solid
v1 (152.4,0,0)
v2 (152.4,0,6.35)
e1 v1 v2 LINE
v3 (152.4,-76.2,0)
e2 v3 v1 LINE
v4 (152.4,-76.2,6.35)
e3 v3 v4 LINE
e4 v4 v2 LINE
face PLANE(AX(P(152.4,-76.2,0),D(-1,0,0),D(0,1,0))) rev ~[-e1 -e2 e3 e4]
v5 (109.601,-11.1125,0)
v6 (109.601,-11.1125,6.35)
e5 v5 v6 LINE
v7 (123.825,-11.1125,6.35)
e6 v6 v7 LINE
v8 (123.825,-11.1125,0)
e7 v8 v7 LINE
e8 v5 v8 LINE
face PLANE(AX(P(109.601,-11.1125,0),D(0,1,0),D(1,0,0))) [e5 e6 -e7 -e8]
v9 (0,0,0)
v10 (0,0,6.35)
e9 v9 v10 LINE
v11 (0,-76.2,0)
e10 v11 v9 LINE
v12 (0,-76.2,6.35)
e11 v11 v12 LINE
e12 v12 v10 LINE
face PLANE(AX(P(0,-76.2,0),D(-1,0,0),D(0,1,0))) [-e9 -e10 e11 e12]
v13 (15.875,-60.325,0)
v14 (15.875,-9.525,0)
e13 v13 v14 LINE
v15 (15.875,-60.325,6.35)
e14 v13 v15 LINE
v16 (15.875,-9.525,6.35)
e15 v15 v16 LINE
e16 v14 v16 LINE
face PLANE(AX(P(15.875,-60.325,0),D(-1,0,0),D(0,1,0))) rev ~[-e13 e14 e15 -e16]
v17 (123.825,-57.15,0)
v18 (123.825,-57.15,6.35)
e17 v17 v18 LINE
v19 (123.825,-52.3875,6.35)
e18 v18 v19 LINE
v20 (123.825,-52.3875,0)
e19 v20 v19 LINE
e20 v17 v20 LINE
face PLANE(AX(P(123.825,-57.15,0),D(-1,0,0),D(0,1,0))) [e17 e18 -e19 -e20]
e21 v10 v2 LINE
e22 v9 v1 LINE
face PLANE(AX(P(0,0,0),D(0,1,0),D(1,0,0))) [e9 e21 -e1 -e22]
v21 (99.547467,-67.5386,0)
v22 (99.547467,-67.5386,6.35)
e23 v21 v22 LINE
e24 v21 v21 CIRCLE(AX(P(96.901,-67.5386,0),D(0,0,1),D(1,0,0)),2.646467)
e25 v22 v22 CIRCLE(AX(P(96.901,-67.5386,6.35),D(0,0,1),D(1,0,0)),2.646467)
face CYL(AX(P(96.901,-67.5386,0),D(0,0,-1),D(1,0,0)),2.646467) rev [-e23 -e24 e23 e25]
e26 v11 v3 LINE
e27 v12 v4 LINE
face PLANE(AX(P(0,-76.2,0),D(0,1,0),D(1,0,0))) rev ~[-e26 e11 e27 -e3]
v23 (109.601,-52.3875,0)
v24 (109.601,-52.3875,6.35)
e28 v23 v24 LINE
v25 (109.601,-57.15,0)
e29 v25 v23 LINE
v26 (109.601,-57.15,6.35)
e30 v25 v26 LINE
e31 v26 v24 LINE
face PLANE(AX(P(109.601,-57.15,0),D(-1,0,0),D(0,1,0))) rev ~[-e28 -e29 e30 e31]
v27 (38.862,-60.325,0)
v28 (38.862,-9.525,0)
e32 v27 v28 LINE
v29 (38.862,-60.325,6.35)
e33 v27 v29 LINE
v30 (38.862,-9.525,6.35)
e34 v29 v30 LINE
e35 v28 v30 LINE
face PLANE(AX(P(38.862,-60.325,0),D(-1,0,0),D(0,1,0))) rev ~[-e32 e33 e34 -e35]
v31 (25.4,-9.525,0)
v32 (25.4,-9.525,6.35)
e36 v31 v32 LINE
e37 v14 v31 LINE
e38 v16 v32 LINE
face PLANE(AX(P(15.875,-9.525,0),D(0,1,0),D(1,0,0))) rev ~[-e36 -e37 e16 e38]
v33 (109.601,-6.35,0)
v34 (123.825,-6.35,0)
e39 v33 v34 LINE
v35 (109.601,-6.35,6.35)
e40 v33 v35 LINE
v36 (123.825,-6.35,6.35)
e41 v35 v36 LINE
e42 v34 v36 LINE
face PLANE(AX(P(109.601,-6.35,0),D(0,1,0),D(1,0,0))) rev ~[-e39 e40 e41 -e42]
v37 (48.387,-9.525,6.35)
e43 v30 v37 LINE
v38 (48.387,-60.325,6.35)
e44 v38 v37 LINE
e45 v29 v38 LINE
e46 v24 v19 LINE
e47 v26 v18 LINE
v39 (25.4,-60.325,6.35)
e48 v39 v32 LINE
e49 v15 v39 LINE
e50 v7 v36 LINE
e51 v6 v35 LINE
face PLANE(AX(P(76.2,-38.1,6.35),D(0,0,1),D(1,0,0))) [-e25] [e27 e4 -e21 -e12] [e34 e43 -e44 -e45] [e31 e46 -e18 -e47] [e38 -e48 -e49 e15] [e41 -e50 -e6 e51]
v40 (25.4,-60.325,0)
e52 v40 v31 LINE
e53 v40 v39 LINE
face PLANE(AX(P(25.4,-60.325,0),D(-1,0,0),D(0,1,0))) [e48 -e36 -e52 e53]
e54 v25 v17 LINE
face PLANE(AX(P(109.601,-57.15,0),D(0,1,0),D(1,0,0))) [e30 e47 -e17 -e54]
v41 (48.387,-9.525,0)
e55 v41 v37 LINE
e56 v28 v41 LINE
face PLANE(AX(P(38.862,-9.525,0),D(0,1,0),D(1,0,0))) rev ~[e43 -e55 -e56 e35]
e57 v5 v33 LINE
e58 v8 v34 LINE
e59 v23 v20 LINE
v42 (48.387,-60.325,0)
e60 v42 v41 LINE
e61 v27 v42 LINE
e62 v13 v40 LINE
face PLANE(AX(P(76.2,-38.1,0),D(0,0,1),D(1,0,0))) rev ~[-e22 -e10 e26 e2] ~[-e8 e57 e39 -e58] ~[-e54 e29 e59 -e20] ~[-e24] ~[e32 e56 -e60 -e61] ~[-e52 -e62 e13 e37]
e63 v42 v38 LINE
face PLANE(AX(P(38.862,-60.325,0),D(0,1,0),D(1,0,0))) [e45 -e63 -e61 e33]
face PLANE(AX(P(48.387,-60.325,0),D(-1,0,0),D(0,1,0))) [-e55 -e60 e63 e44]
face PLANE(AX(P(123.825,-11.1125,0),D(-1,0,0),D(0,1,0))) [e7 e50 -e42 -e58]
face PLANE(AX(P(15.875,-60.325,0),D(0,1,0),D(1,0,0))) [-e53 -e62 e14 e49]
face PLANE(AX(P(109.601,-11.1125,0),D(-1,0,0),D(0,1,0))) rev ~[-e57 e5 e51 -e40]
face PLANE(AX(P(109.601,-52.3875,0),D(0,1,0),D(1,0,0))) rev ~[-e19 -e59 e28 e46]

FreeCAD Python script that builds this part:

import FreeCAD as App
import Part
import Sketcher
Q = App.Units.Quantity


def add_polygon(sketch, points):
    """Adds a closed chain of lines whose ends are joined by coincident constraints."""
    first, n = sketch.GeometryCount, len(points)
    for a, b in zip(points, points[1:] + points[:1]):
        sketch.addGeometry(Part.LineSegment(App.Vector(*a, 0), App.Vector(*b, 0)), False)
    for i in range(n):
        sketch.addConstraint(Sketcher.Constraint("Coincident", first + i, 2, first + (i + 1) % n, 1))

doc = App.newDocument("Part")
params = doc.addObject("Spreadsheet::Sheet", "Params")
for row, (alias, value) in enumerate([
    ("sketch1_width", "6 in"),
    ("sketch1_height", "3 in"),
    ("sketch1_height2", "2 in"),
    ("sketch1_width2", "0.56 in"),
    ("sketch1_width3", "0.375 in"),
    ("pad1_length", "0.25 in"),
], start=1):
    params.set(f"A{row}", alias)
    params.set(f"B{row}", "=" + value)
    params.setAlias(f"B{row}", alias)

body = doc.addObject("PartDesign::Body", "Body")

sketch1 = doc.addObject("Sketcher::SketchObject", "Sketch")
body.addObject(sketch1)
sketch1.AttachmentSupport = (doc.XY_Plane, [""])
sketch1.MapMode = "FlatFace"
add_polygon(sketch1, [(0, 0), (0, -76.2), (152.4, -76.2), (152.4, 0)])
sketch1.addGeometry(Part.Circle(App.Vector(96.9, -67.5, 0), App.Vector(0, 0, 1), 2.6), False)
add_polygon(sketch1, [(123.8, -57.1), (109.6, -57.1), (109.6, -52.4), (123.8, -52.4)])
add_polygon(sketch1, [(25.4, -60.3), (15.9, -60.3), (15.9, -9.5), (25.4, -9.5)])
add_polygon(sketch1, [(48.4, -60.3), (38.9, -60.3), (38.9, -9.5), (48.4, -9.5)])
add_polygon(sketch1, [(123.8, -11.1), (109.6, -11.1), (109.6, -6.3), (123.8, -6.3)])
sketch1.addConstraint(Sketcher.Constraint("Vertical", 0))
sketch1.addConstraint(Sketcher.Constraint("Horizontal", 1))
sketch1.addConstraint(Sketcher.Constraint("Vertical", 2))
sketch1.addConstraint(Sketcher.Constraint("Horizontal", 3))
sketch1.addConstraint(Sketcher.Constraint("Horizontal", 5))
sketch1.addConstraint(Sketcher.Constraint("Vertical", 6))
sketch1.addConstraint(Sketcher.Constraint("Horizontal", 7))
sketch1.addConstraint(Sketcher.Constraint("Vertical", 8))
sketch1.addConstraint(Sketcher.Constraint("Horizontal", 9))
sketch1.addConstraint(Sketcher.Constraint("Vertical", 10))
sketch1.addConstraint(Sketcher.Constraint("Horizontal", 11))
sketch1.addConstraint(Sketcher.Constraint("Vertical", 12))
sketch1.addConstraint(Sketcher.Constraint("Horizontal", 13))
sketch1.addConstraint(Sketcher.Constraint("Vertical", 14))
sketch1.addConstraint(Sketcher.Constraint("Horizontal", 15))
sketch1.addConstraint(Sketcher.Constraint("Vertical", 16))
sketch1.addConstraint(Sketcher.Constraint("Horizontal", 17))
sketch1.addConstraint(Sketcher.Constraint("Vertical", 18))
sketch1.addConstraint(Sketcher.Constraint("Horizontal", 19))
sketch1.addConstraint(Sketcher.Constraint("Vertical", 20))
sketch1.addConstraint(Sketcher.Constraint("Coincident", 3, 2, -1, 1))
sketch1.addConstraint(Sketcher.Constraint("Horizontal", 12, 2, 13, 2))
sketch1.addConstraint(Sketcher.Constraint("Horizontal", 11, 2, 14, 2))
sketch1.addConstraint(Sketcher.Constraint("Vertical", 6, 2, 17, 2))
sketch1.addConstraint(Sketcher.Constraint("Vertical", 8, 2, 19, 2))
sketch1.addConstraint(Sketcher.Constraint("Equal", 11, 13))
sketch1.addConstraint(Sketcher.Constraint("Equal", 8, 18))
sketch1.addConstraint(Sketcher.Constraint("DistanceX", 1, 1, 1, 2, Q("6 in")))
sketch1.addConstraint(Sketcher.Constraint("DistanceY", 0, 2, 0, 1, Q("3 in")))
sketch1.addConstraint(Sketcher.Constraint("DistanceY", 10, 1, 10, 2, Q("2 in")))
sketch1.addConstraint(Sketcher.Constraint("DistanceX", -1, 1, 11, 2, Q("1 in")))
sketch1.addConstraint(Sketcher.Constraint("DistanceY", 5, 2, 18, 2, Q("2 in")))
sketch1.addConstraint(Sketcher.Constraint("DistanceX", 5, 2, 5, 1, Q("0.56 in")))
sketch1.addConstraint(Sketcher.Constraint("DistanceX", 4, 3, 5, 2, Q("0.5 in")))
sketch1.addConstraint(Sketcher.Constraint("DistanceX", 9, 2, 9, 1, Q("0.375 in")))
sketch1.addConstraint(Sketcher.Constraint("DistanceY", 6, 1, 6, 2, Q("0.1875 in")))
sketch1.addConstraint(Sketcher.Constraint("DistanceY", 5, 2, -1, 1, Q("2.25 in")))
sketch1.addConstraint(Sketcher.Constraint("DistanceX", -1, 1, 13, 2, Q("1.53 in")))
sketch1.addConstraint(Sketcher.Constraint("DistanceX", 9, 2, 4, 3, Q("3.19 in")))
sketch1.addConstraint(Sketcher.Constraint("DistanceY", 4, 3, -1, 1, Q("2.659 in")))
sketch1.addConstraint(Sketcher.Constraint("DistanceY", 9, 2, -1, 1, Q("2.375 in")))
sketch1.addConstraint(Sketcher.Constraint("Diameter", 4, Q("5.292934 mm")))
sketch1.setExpression("Constraints[47]", "Params.sketch1_width")
sketch1.setExpression("Constraints[48]", "Params.sketch1_height")
sketch1.setExpression("Constraints[49]", "Params.sketch1_height2")
sketch1.setExpression("Constraints[52]", "Params.sketch1_width2")
sketch1.setExpression("Constraints[54]", "Params.sketch1_width3")
pad1 = doc.addObject("PartDesign::Pad", "Pad")
body.addObject(pad1)
pad1.Profile = sketch1
pad1.setExpression("Length", "Params.pad1_length")

doc.recompute()
